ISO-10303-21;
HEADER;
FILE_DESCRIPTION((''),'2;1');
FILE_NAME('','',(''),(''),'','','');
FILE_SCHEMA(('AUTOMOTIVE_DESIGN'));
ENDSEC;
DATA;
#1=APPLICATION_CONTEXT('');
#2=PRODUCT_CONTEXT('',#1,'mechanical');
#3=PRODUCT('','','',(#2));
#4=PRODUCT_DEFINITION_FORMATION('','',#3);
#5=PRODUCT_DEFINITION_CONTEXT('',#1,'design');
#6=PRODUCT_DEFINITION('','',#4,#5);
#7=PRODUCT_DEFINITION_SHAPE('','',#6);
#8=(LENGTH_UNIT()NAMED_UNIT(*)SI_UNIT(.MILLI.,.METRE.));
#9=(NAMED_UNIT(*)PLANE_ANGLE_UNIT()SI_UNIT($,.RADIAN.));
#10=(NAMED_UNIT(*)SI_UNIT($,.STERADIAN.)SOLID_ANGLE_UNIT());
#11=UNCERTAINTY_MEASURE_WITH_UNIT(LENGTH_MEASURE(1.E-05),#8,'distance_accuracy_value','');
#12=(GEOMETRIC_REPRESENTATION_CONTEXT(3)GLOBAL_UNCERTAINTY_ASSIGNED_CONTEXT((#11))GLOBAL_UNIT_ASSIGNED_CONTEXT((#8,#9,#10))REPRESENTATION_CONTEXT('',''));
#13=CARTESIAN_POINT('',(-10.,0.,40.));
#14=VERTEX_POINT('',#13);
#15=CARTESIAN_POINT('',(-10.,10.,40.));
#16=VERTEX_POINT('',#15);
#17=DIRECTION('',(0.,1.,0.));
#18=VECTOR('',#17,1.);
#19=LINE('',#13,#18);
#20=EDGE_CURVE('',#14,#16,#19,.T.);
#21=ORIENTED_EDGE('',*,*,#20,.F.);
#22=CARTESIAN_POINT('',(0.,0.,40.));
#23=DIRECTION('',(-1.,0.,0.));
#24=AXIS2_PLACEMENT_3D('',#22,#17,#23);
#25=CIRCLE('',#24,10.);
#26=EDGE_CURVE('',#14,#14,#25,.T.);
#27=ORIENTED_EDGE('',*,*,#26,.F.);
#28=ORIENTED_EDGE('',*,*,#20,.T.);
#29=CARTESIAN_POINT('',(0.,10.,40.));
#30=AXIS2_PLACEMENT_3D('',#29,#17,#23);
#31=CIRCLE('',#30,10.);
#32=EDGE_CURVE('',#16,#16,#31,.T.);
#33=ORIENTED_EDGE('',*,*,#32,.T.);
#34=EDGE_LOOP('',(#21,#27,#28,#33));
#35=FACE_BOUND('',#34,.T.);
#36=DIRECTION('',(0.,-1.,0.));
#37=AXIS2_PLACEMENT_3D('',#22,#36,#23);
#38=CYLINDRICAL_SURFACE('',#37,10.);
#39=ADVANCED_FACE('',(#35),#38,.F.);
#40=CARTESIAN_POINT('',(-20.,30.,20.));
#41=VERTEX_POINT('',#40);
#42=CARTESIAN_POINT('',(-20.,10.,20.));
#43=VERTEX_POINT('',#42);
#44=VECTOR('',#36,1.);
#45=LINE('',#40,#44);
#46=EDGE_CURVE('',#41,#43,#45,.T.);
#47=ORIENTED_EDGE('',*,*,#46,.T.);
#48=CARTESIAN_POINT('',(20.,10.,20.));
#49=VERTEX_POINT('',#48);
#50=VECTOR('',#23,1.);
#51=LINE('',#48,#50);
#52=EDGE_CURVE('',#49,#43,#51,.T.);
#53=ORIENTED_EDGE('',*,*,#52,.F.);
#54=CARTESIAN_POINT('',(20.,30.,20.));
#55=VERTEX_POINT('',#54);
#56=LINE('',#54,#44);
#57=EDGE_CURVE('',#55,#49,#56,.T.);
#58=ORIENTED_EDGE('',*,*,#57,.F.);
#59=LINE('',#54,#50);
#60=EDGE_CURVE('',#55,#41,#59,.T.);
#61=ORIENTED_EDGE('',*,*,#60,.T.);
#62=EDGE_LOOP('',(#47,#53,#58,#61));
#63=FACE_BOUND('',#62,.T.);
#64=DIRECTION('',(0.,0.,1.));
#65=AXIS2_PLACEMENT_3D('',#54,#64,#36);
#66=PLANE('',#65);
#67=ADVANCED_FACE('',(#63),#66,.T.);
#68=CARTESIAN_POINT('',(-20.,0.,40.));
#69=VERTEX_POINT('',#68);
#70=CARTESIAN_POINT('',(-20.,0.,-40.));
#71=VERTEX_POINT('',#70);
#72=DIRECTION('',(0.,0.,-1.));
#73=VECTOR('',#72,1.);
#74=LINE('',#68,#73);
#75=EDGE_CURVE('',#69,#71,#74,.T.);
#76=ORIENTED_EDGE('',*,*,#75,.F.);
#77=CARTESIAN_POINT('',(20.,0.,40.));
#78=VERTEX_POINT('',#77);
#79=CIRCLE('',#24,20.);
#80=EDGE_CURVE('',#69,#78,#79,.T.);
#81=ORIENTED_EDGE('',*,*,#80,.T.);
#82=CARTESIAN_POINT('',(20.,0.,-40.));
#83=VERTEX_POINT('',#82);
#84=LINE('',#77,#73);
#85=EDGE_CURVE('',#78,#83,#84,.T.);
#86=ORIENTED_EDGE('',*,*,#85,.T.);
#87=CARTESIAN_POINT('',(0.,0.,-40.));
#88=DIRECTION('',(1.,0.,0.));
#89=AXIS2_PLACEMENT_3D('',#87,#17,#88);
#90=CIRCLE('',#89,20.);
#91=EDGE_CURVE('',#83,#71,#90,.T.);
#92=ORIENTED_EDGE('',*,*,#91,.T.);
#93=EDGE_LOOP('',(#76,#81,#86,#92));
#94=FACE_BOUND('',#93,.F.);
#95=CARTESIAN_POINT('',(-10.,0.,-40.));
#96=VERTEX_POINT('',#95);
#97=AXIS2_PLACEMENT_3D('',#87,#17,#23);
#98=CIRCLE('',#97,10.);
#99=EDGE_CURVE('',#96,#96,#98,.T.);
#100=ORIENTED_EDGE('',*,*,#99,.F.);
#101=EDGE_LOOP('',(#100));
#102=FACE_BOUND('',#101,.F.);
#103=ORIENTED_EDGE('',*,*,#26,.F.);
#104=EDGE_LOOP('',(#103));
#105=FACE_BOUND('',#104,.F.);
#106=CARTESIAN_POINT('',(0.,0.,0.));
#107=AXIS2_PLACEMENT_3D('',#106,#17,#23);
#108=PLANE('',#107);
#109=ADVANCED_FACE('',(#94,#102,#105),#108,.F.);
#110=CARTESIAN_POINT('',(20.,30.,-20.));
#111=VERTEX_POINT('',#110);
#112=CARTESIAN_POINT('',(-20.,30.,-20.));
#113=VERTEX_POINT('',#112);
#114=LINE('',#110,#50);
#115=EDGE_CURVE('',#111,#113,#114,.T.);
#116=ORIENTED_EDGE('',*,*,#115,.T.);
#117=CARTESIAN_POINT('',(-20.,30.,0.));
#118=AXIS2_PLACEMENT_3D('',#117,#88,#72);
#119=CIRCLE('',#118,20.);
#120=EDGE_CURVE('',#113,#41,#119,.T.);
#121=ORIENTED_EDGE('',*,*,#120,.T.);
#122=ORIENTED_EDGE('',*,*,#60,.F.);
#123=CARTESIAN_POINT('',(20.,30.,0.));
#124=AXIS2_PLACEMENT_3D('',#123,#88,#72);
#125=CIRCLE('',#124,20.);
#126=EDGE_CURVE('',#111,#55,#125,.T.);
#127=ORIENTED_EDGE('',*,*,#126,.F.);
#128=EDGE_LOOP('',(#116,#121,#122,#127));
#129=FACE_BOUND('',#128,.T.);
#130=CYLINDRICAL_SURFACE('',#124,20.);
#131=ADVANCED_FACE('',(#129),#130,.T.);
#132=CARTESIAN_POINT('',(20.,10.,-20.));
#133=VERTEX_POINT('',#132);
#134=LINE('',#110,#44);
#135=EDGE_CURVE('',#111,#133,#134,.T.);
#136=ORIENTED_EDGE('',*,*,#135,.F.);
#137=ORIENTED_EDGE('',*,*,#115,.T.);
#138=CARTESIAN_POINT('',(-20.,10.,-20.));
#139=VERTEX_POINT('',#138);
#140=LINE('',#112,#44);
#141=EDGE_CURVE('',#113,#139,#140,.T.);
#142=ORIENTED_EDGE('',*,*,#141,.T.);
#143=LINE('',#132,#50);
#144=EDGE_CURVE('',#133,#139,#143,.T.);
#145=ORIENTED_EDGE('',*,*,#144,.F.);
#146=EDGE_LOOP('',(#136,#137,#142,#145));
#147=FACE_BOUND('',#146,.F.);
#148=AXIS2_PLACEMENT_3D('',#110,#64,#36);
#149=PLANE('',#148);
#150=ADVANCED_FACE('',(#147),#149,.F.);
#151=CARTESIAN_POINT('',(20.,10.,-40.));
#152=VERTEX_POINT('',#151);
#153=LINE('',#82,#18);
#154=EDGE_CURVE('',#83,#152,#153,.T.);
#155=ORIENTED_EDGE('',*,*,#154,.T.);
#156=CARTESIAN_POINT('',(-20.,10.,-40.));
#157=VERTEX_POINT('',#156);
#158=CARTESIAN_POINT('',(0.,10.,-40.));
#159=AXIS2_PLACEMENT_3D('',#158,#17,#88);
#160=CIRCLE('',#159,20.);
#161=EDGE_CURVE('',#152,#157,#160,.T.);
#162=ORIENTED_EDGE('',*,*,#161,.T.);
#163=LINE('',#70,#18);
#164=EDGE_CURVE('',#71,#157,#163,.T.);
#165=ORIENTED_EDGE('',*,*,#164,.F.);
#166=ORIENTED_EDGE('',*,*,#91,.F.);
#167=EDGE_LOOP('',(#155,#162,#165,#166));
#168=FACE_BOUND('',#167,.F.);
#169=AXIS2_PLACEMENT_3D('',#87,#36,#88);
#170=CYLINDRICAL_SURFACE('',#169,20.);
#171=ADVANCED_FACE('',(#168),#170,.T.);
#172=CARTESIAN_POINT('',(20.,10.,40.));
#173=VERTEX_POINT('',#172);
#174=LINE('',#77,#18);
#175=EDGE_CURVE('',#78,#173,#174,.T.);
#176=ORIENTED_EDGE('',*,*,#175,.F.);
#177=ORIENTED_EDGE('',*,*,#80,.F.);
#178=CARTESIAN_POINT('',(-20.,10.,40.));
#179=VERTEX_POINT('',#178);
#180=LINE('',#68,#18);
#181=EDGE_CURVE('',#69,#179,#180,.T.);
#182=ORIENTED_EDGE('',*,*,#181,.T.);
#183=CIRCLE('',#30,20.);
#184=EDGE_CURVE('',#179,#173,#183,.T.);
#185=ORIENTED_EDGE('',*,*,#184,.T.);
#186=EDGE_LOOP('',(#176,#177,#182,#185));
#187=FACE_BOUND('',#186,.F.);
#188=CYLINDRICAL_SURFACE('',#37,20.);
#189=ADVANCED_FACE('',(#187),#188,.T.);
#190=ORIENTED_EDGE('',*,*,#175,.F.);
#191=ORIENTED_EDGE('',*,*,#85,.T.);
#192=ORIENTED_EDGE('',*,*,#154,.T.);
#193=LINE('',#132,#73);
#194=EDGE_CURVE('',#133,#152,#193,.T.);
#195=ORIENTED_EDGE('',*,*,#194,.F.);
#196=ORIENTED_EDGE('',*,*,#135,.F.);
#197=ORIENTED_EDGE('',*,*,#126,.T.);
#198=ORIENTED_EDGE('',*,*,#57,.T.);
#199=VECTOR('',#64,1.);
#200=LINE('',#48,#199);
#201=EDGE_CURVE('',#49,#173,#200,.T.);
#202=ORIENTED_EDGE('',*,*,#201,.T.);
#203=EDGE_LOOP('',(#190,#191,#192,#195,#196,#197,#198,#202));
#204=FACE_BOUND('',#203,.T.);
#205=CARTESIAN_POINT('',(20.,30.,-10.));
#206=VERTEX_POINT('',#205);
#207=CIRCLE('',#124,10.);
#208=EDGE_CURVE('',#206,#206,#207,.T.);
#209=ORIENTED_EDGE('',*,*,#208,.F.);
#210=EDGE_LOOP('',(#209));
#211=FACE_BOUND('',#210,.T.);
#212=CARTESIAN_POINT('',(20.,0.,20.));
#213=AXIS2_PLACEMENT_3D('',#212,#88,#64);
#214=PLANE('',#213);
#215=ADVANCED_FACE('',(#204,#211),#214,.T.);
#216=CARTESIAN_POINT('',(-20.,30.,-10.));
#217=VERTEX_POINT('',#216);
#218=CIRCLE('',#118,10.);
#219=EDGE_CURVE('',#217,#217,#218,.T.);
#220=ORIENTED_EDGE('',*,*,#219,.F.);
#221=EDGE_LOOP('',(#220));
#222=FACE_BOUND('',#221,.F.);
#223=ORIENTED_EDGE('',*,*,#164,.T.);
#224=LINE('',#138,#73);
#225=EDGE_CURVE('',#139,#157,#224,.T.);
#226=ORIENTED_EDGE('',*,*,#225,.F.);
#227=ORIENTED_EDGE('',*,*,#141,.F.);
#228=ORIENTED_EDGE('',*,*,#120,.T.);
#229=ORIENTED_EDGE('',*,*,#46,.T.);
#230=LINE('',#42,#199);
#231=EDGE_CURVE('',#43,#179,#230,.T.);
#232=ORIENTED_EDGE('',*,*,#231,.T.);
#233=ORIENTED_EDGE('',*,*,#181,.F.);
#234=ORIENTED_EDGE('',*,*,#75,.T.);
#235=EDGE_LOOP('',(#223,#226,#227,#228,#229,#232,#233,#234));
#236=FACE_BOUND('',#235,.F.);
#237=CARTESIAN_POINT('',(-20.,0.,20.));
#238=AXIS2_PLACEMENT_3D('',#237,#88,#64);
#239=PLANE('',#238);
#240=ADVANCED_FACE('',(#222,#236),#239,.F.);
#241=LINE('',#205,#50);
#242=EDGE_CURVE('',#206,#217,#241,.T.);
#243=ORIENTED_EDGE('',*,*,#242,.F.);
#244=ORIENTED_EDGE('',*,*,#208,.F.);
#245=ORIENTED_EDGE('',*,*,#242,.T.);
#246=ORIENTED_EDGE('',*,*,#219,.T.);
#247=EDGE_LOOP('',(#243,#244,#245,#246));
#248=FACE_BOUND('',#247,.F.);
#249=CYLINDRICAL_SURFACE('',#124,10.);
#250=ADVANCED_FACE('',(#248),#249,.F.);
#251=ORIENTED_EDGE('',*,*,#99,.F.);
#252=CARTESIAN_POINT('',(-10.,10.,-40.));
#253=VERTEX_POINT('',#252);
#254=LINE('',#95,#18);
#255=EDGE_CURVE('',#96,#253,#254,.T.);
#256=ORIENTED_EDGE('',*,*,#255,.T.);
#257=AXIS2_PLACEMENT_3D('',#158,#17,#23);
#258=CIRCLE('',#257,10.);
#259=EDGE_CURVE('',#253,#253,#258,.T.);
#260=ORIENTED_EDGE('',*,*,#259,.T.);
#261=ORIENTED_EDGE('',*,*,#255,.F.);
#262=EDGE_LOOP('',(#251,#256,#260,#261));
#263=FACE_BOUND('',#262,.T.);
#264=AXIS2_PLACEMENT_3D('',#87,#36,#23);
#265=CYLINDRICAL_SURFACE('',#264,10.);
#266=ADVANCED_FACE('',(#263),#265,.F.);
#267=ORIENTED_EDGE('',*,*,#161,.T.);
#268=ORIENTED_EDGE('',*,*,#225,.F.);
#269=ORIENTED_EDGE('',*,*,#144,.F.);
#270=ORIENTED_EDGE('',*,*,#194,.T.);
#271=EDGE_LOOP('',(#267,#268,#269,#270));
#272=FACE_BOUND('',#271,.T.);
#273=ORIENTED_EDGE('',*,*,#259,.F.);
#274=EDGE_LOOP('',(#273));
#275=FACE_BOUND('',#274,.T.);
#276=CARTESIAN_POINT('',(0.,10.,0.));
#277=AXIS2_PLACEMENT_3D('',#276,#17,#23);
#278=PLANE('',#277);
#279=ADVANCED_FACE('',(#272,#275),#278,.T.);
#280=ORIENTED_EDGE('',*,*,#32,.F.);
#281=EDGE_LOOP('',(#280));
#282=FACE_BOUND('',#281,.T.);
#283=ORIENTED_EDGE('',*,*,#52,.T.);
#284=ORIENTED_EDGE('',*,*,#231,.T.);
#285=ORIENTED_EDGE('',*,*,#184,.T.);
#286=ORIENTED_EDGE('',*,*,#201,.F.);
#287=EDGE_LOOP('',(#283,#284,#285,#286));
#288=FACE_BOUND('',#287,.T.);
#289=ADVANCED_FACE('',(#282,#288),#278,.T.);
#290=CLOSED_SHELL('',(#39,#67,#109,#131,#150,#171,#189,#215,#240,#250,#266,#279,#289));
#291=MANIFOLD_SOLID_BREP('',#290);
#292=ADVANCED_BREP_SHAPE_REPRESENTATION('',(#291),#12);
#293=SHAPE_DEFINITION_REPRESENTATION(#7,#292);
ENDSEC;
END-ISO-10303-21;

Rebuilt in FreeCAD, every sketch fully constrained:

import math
import FreeCAD as App
import Part
import Sketcher
from FreeCAD import Vector

doc = App.newDocument("Part")
body = doc.addObject("PartDesign::Body", "Body")

# Sketch on XZ plane
sketch1 = body.newObject("Sketcher::SketchObject", "Sketch")
sketch1.AttachmentSupport = (doc.getObject("XZ_Plane"), [""])
sketch1.MapMode = "FlatFace"
sketch1.addGeometry([
    Part.LineSegment(Vector(20, 40, 0), Vector(20, -40, 0)),  # 0
    Part.ArcOfCircle(Part.Circle(Vector(0, -40, 0), Vector(0, 0, 1), 20), math.radians(180), math.radians(360)),  # 1
    Part.LineSegment(Vector(-20, -40, 0), Vector(-20, 40, 0)),  # 2
    Part.ArcOfCircle(Part.Circle(Vector(0, 40, 0), Vector(0, 0, 1), 20), math.radians(0), math.radians(180)),  # 3
    Part.Circle(Vector(0, -40, 0), Vector(0, 0, 1), 10),  # 4
    Part.Circle(Vector(0, 40, 0), Vector(0, 0, 1), 10),  # 5
], False)
sketch1.addConstraint([
    Sketcher.Constraint("Tangent", 0, 2, 1, 2),
    Sketcher.Constraint("Tangent", 1, 1, 2, 1),
    Sketcher.Constraint("Tangent", 2, 2, 3, 2),
    Sketcher.Constraint("Tangent", 3, 1, 0, 1),
    Sketcher.Constraint("Vertical", 0),
    Sketcher.Constraint("Vertical", 2),
    Sketcher.Constraint("Coincident", 4, 3, 1, 3),
    Sketcher.Constraint("Coincident", 5, 3, 3, 3),
    Sketcher.Constraint("Equal", 4, 5),
    Sketcher.Constraint("Symmetric", 1, 3, 3, 3, -1, 1),
    Sketcher.Constraint("Diameter", 4, 20.0),
    Sketcher.Constraint("Radius", 1, 20.0),
    Sketcher.Constraint("DistanceY", 1, 3, -1, 1, 40.0),
])
pad1 = body.newObject("PartDesign::Pad", "Pad")
pad1.Profile = sketch1
pad1.Length = 10
pad1.Reversed = True

# Sketch on YZ plane
sketch2 = body.newObject("Sketcher::SketchObject", "Sketch001")
sketch2.AttachmentSupport = (doc.getObject("YZ_Plane"), [""])
sketch2.MapMode = "FlatFace"
sketch2.AttachmentOffset = App.Placement(Vector(0, 0, 20), App.Rotation())
sketch2.addGeometry([
    Part.LineSegment(Vector(10, -20, 0), Vector(30, -20, 0)),  # 0
    Part.ArcOfCircle(Part.Circle(Vector(30, 0, 0), Vector(0, 0, 1), 20), math.radians(-90), math.radians(90)),  # 1
    Part.LineSegment(Vector(30, 20, 0), Vector(10, 20, 0)),  # 2
    Part.LineSegment(Vector(10, 20, 0), Vector(10, -20, 0)),  # 3
    Part.Circle(Vector(30, 0, 0), Vector(0, 0, 1), 10),  # 4
], False)
sketch2.addConstraint([
    Sketcher.Constraint("Tangent", 0, 2, 1, 1),
    Sketcher.Constraint("Tangent", 1, 2, 2, 1),
    Sketcher.Constraint("Coincident", 2, 2, 3, 1),
    Sketcher.Constraint("Coincident", 3, 2, 0, 1),
    Sketcher.Constraint("Horizontal", 0),
    Sketcher.Constraint("Horizontal", 2),
    Sketcher.Constraint("Vertical", 3),
    Sketcher.Constraint("Coincident", 4, 3, 1, 3),
    Sketcher.Constraint("PointOnObject", 1, 3, -1),
    Sketcher.Constraint("Diameter", 4, 20.0),
    Sketcher.Constraint("Radius", 1, 20.0),
    Sketcher.Constraint("DistanceX", 0, 1, 0, 2, 20.0),
    Sketcher.Constraint("DistanceX", -1, 1, 1, 3, 30.0),
])
pad2 = body.newObject("PartDesign::Pad", "Pad001")
pad2.Profile = sketch2
pad2.Length = 40
pad2.Reversed = True

doc.recompute()
